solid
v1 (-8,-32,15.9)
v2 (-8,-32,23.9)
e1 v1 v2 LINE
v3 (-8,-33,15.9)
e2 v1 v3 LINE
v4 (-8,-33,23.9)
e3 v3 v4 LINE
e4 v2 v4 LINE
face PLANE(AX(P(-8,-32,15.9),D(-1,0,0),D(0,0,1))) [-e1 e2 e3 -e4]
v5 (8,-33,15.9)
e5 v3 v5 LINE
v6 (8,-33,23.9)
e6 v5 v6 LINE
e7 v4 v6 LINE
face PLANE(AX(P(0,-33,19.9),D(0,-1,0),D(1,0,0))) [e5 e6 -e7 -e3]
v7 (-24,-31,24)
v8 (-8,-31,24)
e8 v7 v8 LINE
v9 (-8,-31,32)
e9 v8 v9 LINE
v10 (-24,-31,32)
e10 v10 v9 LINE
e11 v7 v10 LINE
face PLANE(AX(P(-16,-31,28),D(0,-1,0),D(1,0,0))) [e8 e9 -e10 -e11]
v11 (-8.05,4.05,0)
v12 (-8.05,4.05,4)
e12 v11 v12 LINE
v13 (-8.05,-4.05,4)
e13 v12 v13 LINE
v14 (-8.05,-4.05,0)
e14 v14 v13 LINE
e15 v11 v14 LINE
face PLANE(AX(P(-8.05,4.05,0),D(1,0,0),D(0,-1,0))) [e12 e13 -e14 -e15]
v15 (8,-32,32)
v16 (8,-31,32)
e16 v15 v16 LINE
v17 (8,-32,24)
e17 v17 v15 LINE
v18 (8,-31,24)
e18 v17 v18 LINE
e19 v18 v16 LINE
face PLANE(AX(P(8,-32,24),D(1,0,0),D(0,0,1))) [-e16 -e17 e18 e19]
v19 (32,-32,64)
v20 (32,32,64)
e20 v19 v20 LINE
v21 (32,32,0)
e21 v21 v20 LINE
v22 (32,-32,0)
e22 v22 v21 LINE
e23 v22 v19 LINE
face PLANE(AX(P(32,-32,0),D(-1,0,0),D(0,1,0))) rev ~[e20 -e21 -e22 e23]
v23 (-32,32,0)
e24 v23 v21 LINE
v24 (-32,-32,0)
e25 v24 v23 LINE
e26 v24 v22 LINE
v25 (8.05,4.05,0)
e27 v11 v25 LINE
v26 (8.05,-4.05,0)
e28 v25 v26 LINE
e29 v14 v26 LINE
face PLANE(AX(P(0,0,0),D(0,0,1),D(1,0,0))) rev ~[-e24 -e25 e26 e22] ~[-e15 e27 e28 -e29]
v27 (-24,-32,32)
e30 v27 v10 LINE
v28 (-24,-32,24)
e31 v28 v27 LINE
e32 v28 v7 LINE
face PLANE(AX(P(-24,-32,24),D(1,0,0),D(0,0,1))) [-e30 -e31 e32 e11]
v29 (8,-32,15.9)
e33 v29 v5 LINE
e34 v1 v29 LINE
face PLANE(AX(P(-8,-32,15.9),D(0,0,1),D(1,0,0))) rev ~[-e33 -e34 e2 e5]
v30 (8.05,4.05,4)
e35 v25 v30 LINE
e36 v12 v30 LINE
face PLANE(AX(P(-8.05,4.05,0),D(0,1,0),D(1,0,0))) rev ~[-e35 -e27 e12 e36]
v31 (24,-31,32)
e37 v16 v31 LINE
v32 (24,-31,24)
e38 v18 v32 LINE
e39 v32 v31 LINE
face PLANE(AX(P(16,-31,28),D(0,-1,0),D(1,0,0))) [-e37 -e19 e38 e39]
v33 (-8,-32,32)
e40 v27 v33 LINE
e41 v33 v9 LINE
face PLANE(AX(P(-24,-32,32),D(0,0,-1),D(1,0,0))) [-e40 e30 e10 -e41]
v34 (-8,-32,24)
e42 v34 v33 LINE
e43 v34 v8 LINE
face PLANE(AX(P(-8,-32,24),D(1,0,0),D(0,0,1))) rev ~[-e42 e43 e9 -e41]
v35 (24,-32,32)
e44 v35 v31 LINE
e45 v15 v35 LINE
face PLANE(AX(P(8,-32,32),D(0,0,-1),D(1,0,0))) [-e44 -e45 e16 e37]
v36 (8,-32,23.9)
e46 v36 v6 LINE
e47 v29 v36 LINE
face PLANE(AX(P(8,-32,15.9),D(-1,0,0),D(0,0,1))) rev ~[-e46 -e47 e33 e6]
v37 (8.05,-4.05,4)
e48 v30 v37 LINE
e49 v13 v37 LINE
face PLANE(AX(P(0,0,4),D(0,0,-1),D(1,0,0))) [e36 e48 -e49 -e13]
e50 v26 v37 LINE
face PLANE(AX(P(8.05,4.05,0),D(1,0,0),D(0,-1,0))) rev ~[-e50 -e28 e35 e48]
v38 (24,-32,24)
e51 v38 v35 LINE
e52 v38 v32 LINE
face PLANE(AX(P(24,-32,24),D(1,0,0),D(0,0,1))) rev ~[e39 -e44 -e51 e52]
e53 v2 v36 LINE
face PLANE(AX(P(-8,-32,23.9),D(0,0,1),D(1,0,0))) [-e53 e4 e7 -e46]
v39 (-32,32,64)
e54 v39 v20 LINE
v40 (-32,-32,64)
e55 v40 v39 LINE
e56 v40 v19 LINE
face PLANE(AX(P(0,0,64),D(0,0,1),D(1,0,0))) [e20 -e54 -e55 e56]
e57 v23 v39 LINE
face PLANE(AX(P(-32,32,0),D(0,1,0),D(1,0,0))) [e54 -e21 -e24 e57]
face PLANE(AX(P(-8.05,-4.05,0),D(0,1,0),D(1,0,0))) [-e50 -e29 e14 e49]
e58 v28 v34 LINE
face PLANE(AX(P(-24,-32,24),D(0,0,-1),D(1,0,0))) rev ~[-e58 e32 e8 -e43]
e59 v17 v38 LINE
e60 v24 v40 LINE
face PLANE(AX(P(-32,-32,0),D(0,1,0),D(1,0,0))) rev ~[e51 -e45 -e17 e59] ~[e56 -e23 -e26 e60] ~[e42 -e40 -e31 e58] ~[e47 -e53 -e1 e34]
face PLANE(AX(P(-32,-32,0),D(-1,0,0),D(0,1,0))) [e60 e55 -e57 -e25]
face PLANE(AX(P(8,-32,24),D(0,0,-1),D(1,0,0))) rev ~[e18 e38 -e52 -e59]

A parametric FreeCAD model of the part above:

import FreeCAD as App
import Part
import Sketcher
Q = App.Units.Quantity

doc = App.newDocument("Part")
body = doc.addObject("PartDesign::Body", "Body")

# Sketch on XY plane
sketch1 = doc.addObject("Sketcher::SketchObject", "Sketch")
body.addObject(sketch1)
sketch1.AttachmentSupport = (doc.XY_Plane, [""])
sketch1.MapMode = "FlatFace"
sketch1.addGeometry([
    Part.LineSegment(App.Vector(-32, 32, 0), App.Vector(-32, -32, 0)),
    Part.LineSegment(App.Vector(-32, -32, 0), App.Vector(32, -32, 0)),
    Part.LineSegment(App.Vector(32, -32, 0), App.Vector(32, 32, 0)),
    Part.LineSegment(App.Vector(32, 32, 0), App.Vector(-32, 32, 0)),
], False)
sketch1.addConstraint([
    Sketcher.Constraint("Coincident", 0, 2, 1, 1),
    Sketcher.Constraint("Coincident", 1, 2, 2, 1),
    Sketcher.Constraint("Coincident", 2, 2, 3, 1),
    Sketcher.Constraint("Coincident", 3, 2, 0, 1),
    Sketcher.Constraint("Vertical", 0),
    Sketcher.Constraint("Horizontal", 1),
    Sketcher.Constraint("Vertical", 2),
    Sketcher.Constraint("Horizontal", 3),
    Sketcher.Constraint("Symmetric", 0, 2, 2, 2, -1, 1),
    Sketcher.Constraint("Equal", 3, 0),
    Sketcher.Constraint("DistanceX", 1, 1, 1, 2, Q("64 mm")),
])
pad1 = doc.addObject("PartDesign::Pad", "Pad")
body.addObject(pad1)
pad1.Profile = sketch1
pad1.Length = 64

# Sketch on XZ plane
sketch2 = doc.addObject("Sketcher::SketchObject", "Sketch001")
body.addObject(sketch2)
sketch2.AttachmentSupport = (doc.XZ_Plane, [""])
sketch2.MapMode = "FlatFace"
sketch2.AttachmentOffset = App.Placement(App.Vector(0, 0, 32), App.Rotation())
sketch2.addGeometry([
    Part.LineSegment(App.Vector(-8, 24, 0), App.Vector(-8, 16, 0)),
    Part.LineSegment(App.Vector(-8, 16, 0), App.Vector(8, 16, 0)),
    Part.LineSegment(App.Vector(8, 16, 0), App.Vector(8, 24, 0)),
    Part.LineSegment(App.Vector(8, 24, 0), App.Vector(-8, 24, 0)),
], False)
sketch2.addConstraint([
    Sketcher.Constraint("Coincident", 0, 2, 1, 1),
    Sketcher.Constraint("Coincident", 1, 2, 2, 1),
    Sketcher.Constraint("Coincident", 2, 2, 3, 1),
    Sketcher.Constraint("Coincident", 3, 2, 0, 1),
    Sketcher.Constraint("Vertical", 0),
    Sketcher.Constraint("Horizontal", 1),
    Sketcher.Constraint("Vertical", 2),
    Sketcher.Constraint("Horizontal", 3),
    Sketcher.Constraint("DistanceX", 1, 1, 1, 2, Q("16 mm")),
    Sketcher.Constraint("DistanceY", 0, 2, 0, 1, Q("8 mm")),
    Sketcher.Constraint("DistanceX", 0, 2, -1, 1, Q("8 mm")),
    Sketcher.Constraint("DistanceY", -1, 1, 0, 2, Q("15.9 mm")),
])
pad2 = doc.addObject("PartDesign::Pad", "Pad001")
body.addObject(pad2)
pad2.Profile = sketch2
pad2.Length = 1

# Sketch on XZ plane
sketch3 = doc.addObject("Sketcher::SketchObject", "Sketch002")
body.addObject(sketch3)
sketch3.AttachmentSupport = (doc.XZ_Plane, [""])
sketch3.MapMode = "FlatFace"
sketch3.AttachmentOffset = App.Placement(App.Vector(0, 0, 32), App.Rotation())
sketch3.addGeometry([
    Part.LineSegment(App.Vector(-24, 32, 0), App.Vector(-24, 24, 0)),  # 0
    Part.LineSegment(App.Vector(-24, 24, 0), App.Vector(-8, 24, 0)),  # 1
    Part.LineSegment(App.Vector(-8, 24, 0), App.Vector(-8, 32, 0)),  # 2
    Part.LineSegment(App.Vector(-8, 32, 0), App.Vector(-24, 32, 0)),  # 3
    Part.LineSegment(App.Vector(8, 32, 0), App.Vector(8, 24, 0)),  # 4
    Part.LineSegment(App.Vector(8, 24, 0), App.Vector(24, 24, 0)),  # 5
    Part.LineSegment(App.Vector(24, 24, 0), App.Vector(24, 32, 0)),  # 6
    Part.LineSegment(App.Vector(24, 32, 0), App.Vector(8, 32, 0)),  # 7
], False)
sketch3.addConstraint([
    Sketcher.Constraint("Coincident", 0, 2, 1, 1),
    Sketcher.Constraint("Coincident", 1, 2, 2, 1),
    Sketcher.Constraint("Coincident", 2, 2, 3, 1),
    Sketcher.Constraint("Coincident", 3, 2, 0, 1),
    Sketcher.Constraint("Coincident", 4, 2, 5, 1),
    Sketcher.Constraint("Coincident", 5, 2, 6, 1),
    Sketcher.Constraint("Coincident", 6, 2, 7, 1),
    Sketcher.Constraint("Coincident", 7, 2, 4, 1),
    Sketcher.Constraint("Vertical", 0),
    Sketcher.Constraint("Horizontal", 1),
    Sketcher.Constraint("Vertical", 2),
    Sketcher.Constraint("Horizontal", 3),
    Sketcher.Constraint("Vertical", 4),
    Sketcher.Constraint("Horizontal", 5),
    Sketcher.Constraint("Vertical", 6),
    Sketcher.Constraint("Horizontal", 7),
    Sketcher.Constraint("Symmetric", 1, 2, 4, 2, -2),
    Sketcher.Constraint("Symmetric", 3, 2, 6, 2, -2),
    Sketcher.Constraint("DistanceX", 1, 1, 1, 2, Q("16 mm")),
    Sketcher.Constraint("DistanceY", 0, 2, 0, 1, Q("8 mm")),
    Sketcher.Constraint("DistanceX", 0, 2, -1, 1, Q("24 mm")),
    Sketcher.Constraint("DistanceY", -1, 1, 0, 2, Q("24 mm")),
])
pocket1 = doc.addObject("PartDesign::Pocket", "Pocket")
body.addObject(pocket1)
pocket1.Profile = sketch3
pocket1.Length = 1

# Sketch on XY plane
sketch4 = doc.addObject("Sketcher::SketchObject", "Sketch003")
body.addObject(sketch4)
sketch4.AttachmentSupport = (doc.XY_Plane, [""])
sketch4.MapMode = "FlatFace"
sketch4.addGeometry([
    Part.LineSegment(App.Vector(-8, -4, 0), App.Vector(-8, 4, 0)),
    Part.LineSegment(App.Vector(-8, 4, 0), App.Vector(8, 4, 0)),
    Part.LineSegment(App.Vector(8, 4, 0), App.Vector(8, -4, 0)),
    Part.LineSegment(App.Vector(8, -4, 0), App.Vector(-8, -4, 0)),
], False)
sketch4.addConstraint([
    Sketcher.Constraint("Coincident", 0, 2, 1, 1),
    Sketcher.Constraint("Coincident", 1, 2, 2, 1),
    Sketcher.Constraint("Coincident", 2, 2, 3, 1),
    Sketcher.Constraint("Coincident", 3, 2, 0, 1),
    Sketcher.Constraint("Vertical", 0),
    Sketcher.Constraint("Horizontal", 1),
    Sketcher.Constraint("Vertical", 2),
    Sketcher.Constraint("Horizontal", 3),
    Sketcher.Constraint("Symmetric", 0, 2, 2, 2, -1, 1),
    Sketcher.Constraint("DistanceX", 1, 1, 1, 2, Q("16.1 mm")),
    Sketcher.Constraint("DistanceY", 0, 1, 0, 2, Q("8.1 mm")),
])
pocket2 = doc.addObject("PartDesign::Pocket", "Pocket001")
body.addObject(pocket2)
pocket2.Profile = sketch4
pocket2.Length = 4
pocket2.Reversed = True

doc.recompute()
